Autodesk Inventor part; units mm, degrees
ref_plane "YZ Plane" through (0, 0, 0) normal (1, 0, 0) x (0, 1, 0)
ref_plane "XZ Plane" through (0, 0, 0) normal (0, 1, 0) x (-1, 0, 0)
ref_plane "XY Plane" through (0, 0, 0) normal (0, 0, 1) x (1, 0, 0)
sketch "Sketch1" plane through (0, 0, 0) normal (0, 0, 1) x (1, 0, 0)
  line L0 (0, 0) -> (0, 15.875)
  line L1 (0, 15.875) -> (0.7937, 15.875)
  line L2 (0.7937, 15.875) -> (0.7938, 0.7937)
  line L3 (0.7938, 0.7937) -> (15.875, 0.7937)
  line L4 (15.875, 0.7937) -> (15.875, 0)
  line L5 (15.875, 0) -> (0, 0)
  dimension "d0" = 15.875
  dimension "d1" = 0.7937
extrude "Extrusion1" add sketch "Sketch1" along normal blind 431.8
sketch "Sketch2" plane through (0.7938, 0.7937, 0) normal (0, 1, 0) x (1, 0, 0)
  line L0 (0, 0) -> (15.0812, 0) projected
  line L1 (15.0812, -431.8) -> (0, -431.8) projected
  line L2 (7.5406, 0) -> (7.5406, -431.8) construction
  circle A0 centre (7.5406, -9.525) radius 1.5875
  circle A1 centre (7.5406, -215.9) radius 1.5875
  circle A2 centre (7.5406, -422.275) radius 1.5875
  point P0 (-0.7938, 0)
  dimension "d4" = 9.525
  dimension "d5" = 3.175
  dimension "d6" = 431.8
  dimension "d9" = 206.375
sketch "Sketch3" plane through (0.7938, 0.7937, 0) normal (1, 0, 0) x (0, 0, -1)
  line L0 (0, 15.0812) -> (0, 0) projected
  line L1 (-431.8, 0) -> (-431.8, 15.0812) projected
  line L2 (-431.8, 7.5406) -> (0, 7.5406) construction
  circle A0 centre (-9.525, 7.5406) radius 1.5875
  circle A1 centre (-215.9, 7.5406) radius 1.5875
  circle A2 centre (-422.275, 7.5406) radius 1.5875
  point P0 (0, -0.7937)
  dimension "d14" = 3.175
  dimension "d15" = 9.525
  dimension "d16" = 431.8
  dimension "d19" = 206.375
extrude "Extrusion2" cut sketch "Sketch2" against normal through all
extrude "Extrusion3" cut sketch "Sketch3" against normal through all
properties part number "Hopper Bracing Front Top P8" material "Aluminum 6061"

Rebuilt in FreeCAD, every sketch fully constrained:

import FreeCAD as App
import Part
import Sketcher
from FreeCAD import Vector
Q = App.Units.Quantity


def add_polygon(sketch, points):
    """Adds a closed chain of lines whose ends are joined by coincident constraints."""
    first, n = sketch.GeometryCount, len(points)
    for a, b in zip(points, points[1:] + points[:1]):
        sketch.addGeometry(Part.LineSegment(App.Vector(*a, 0), App.Vector(*b, 0)), False)
    for i in range(n):
        sketch.addConstraint(Sketcher.Constraint("Coincident", first + i, 2, first + (i + 1) % n, 1))

doc = App.newDocument("Part")
body = doc.addObject("PartDesign::Body", "Body")

sketch1 = body.newObject("Sketcher::SketchObject", "Sketch")
sketch1.AttachmentSupport = (doc.getObject("XY_Plane"), [""])
sketch1.MapMode = "FlatFace"
add_polygon(sketch1, [(0, 15.9), (0, 0), (15.9, 0), (15.9, 0.8), (0.8, 0.8), (0.8, 15.9)])
sketch1.addConstraint([
    Sketcher.Constraint("Vertical", 0),
    Sketcher.Constraint("Horizontal", 1),
    Sketcher.Constraint("Vertical", 2),
    Sketcher.Constraint("Horizontal", 3),
    Sketcher.Constraint("Vertical", 4),
    Sketcher.Constraint("Horizontal", 5),
    Sketcher.Constraint("Coincident", 0, 2, -1, 1),
    Sketcher.Constraint("Equal", 1, 0),
    Sketcher.Constraint("Equal", 5, 2),
    Sketcher.Constraint("DistanceX", 1, 1, 1, 2, Q("0.625 in")),
    Sketcher.Constraint("DistanceX", 5, 2, 5, 1, Q("0.031248 in")),
])
pad1 = body.newObject("PartDesign::Pad", "Pad")
pad1.Profile = sketch1
pad1.Length = Q("17 in")

sketch2 = body.newObject("Sketcher::SketchObject", "Sketch001")
sketch2.AttachmentSupport = (doc.getObject("XZ_Plane"), [""])
sketch2.MapMode = "FlatFace"
sketch2.AttachmentOffset = App.Placement(Vector(0, 0, -0.031248 * 25.4), App.Rotation())
sketch2.addGeometry([
    Part.Circle(Vector(8.3, 9.5, 0), Vector(0, 0, 1), 1.6),
    Part.Circle(Vector(8.3, 215.9, 0), Vector(0, 0, 1), 1.6),
    Part.Circle(Vector(8.3, 422.3, 0), Vector(0, 0, 1), 1.6),
], False)
sketch2.addConstraint([
    Sketcher.Constraint("Equal", 0, 1),
    Sketcher.Constraint("Equal", 1, 2),
    Sketcher.Constraint("Vertical", 0, 3, 1, 3),
    Sketcher.Constraint("Vertical", 1, 3, 2, 3),
    Sketcher.Constraint("Diameter", 0, Q("0.125 in")),
    Sketcher.Constraint("DistanceY", -1, 1, 0, 3, Q("0.375 in")),
    Sketcher.Constraint("DistanceY", 0, 3, 1, 3, Q("8.125 in")),
    Sketcher.Constraint("DistanceY", 1, 3, 2, 3, Q("8.125 in")),
    Sketcher.Constraint("DistanceX", -1, 1, 0, 3, Q("0.328126 in")),
])
pocket1 = body.newObject("PartDesign::Pocket", "Pocket")
pocket1.Profile = sketch2
pocket1.Type = "ThroughAll"
pocket1.Reversed = True

sketch3 = body.newObject("Sketcher::SketchObject", "Sketch002")
sketch3.AttachmentSupport = (doc.getObject("YZ_Plane"), [""])
sketch3.MapMode = "FlatFace"
sketch3.AttachmentOffset = App.Placement(Vector(0, 0, 0.031252 * 25.4), App.Rotation())
sketch3.addGeometry([
    Part.Circle(Vector(8.3, 9.5, 0), Vector(0, 0, 1), 1.6),
    Part.Circle(Vector(8.3, 215.9, 0), Vector(0, 0, 1), 1.6),
    Part.Circle(Vector(8.3, 422.3, 0), Vector(0, 0, 1), 1.6),
], False)
sketch3.addConstraint([
    Sketcher.Constraint("Equal", 0, 1),
    Sketcher.Constraint("Equal", 1, 2),
    Sketcher.Constraint("Vertical", 0, 3, 1, 3),
    Sketcher.Constraint("Vertical", 1, 3, 2, 3),
    Sketcher.Constraint("Diameter", 0, Q("0.125 in")),
    Sketcher.Constraint("DistanceY", -1, 1, 0, 3, Q("0.375 in")),
    Sketcher.Constraint("DistanceY", 0, 3, 1, 3, Q("8.125 in")),
    Sketcher.Constraint("DistanceY", 1, 3, 2, 3, Q("8.125 in")),
    Sketcher.Constraint("DistanceX", -1, 1, 0, 3, Q("0.328122 in")),
])
pocket2 = body.newObject("PartDesign::Pocket", "Pocket001")
pocket2.Profile = sketch3
pocket2.Type = "ThroughAll"

doc.recompute()
